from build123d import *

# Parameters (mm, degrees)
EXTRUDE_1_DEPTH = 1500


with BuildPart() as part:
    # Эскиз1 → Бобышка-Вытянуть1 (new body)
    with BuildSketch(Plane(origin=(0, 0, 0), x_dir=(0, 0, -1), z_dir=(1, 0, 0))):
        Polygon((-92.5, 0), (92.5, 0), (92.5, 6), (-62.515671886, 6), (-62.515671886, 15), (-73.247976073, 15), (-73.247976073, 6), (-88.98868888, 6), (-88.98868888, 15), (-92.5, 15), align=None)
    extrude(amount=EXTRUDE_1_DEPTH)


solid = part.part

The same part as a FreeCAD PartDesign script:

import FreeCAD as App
import Part
import Sketcher
from FreeCAD import Vector

doc = App.newDocument("Part")
params = doc.addObject("Spreadsheet::Sheet", "Params")
for row, (alias, value) in enumerate([
    ("sketch1_width", "6 mm"),
    ("sketch1_width2", "9 mm"),
    ("sketch1_height", "185 mm"),
    ("pad1_length", "1500 mm"),
], start=1):
    params.set(f"A{row}", alias)
    params.set(f"B{row}", "=" + value)
    params.setAlias(f"B{row}", alias)

body = doc.addObject("PartDesign::Body", "Body")

sketch1 = body.newObject("Sketcher::SketchObject", "Sketch")
sketch1.AttachmentSupport = (doc.getObject("YZ_Plane"), [""])
sketch1.MapMode = "FlatFace"
sketch1.addGeometry(Part.LineSegment(Vector(0, 92.5, 0), Vector(0, -92.5, 0)), False)
sketch1.addGeometry(Part.LineSegment(Vector(0, -92.5, 0), Vector(6, -92.5, 0)), False)
sketch1.addGeometry(Part.LineSegment(Vector(6, -92.5, 0), Vector(6, 62.5, 0)), False)
sketch1.addGeometry(Part.LineSegment(Vector(6, 62.5, 0), Vector(15, 62.5, 0)), False)
sketch1.addGeometry(Part.LineSegment(Vector(15, 62.5, 0), Vector(15, 73.2, 0)), False)
sketch1.addGeometry(Part.LineSegment(Vector(15, 73.2, 0), Vector(6, 73.2, 0)), False)
sketch1.addGeometry(Part.LineSegment(Vector(6, 73.2, 0), Vector(6, 89, 0)), False)
sketch1.addGeometry(Part.LineSegment(Vector(6, 89, 0), Vector(15, 89, 0)), False)
sketch1.addGeometry(Part.LineSegment(Vector(15, 89, 0), Vector(15, 92.5, 0)), False)
sketch1.addGeometry(Part.LineSegment(Vector(15, 92.5, 0), Vector(0, 92.5, 0)), False)
sketch1.addConstraint(Sketcher.Constraint("Coincident", 0, 2, 1, 1))
sketch1.addConstraint(Sketcher.Constraint("Coincident", 1, 2, 2, 1))
sketch1.addConstraint(Sketcher.Constraint("Coincident", 2, 2, 3, 1))
sketch1.addConstraint(Sketcher.Constraint("Coincident", 3, 2, 4, 1))
sketch1.addConstraint(Sketcher.Constraint("Coincident", 4, 2, 5, 1))
sketch1.addConstraint(Sketcher.Constraint("Coincident", 5, 2, 6, 1))
sketch1.addConstraint(Sketcher.Constraint("Coincident", 6, 2, 7, 1))
sketch1.addConstraint(Sketcher.Constraint("Coincident", 7, 2, 8, 1))
sketch1.addConstraint(Sketcher.Constraint("Coincident", 8, 2, 9, 1))
sketch1.addConstraint(Sketcher.Constraint("Coincident", 9, 2, 0, 1))
sketch1.addConstraint(Sketcher.Constraint("Vertical", 0))
sketch1.addConstraint(Sketcher.Constraint("Horizontal", 1))
sketch1.addConstraint(Sketcher.Constraint("Vertical", 2))
sketch1.addConstraint(Sketcher.Constraint("Horizontal", 3))
sketch1.addConstraint(Sketcher.Constraint("Vertical", 4))
sketch1.addConstraint(Sketcher.Constraint("Horizontal", 5))
sketch1.addConstraint(Sketcher.Constraint("Vertical", 6))
sketch1.addConstraint(Sketcher.Constraint("Horizontal", 7))
sketch1.addConstraint(Sketcher.Constraint("Vertical", 8))
sketch1.addConstraint(Sketcher.Constraint("Horizontal", 9))
sketch1.addConstraint(Sketcher.Constraint("Symmetric", 0, 2, 9, 2, -1, 1))
sketch1.addConstraint(Sketcher.Constraint("Vertical", 2, 2, 5, 2))
sketch1.addConstraint(Sketcher.Constraint("Vertical", 4, 2, 7, 2))
sketch1.addConstraint(Sketcher.Constraint("DistanceX", 1, 1, 1, 2, 6.0))
sketch1.addConstraint(Sketcher.Constraint("DistanceX", 3, 1, 3, 2, 9.0))
sketch1.addConstraint(Sketcher.Constraint("DistanceY", 0, 2, 0, 1, 185.0))
sketch1.addConstraint(Sketcher.Constraint("DistanceY", 2, 1, 2, 2, 155.015672))
sketch1.addConstraint(Sketcher.Constraint("DistanceY", 8, 1, 8, 2, 3.511311))
sketch1.addConstraint(Sketcher.Constraint("DistanceY", 4, 1, 4, 2, 10.732304))
sketch1.setExpression("Constraints[23]", "Params.sketch1_width")
sketch1.setExpression("Constraints[24]", "Params.sketch1_width2")
sketch1.setExpression("Constraints[25]", "Params.sketch1_height")
pad1 = body.newObject("PartDesign::Pad", "Pad")
pad1.Profile = sketch1
pad1.setExpression("Length", "Params.pad1_length")

doc.recompute()
